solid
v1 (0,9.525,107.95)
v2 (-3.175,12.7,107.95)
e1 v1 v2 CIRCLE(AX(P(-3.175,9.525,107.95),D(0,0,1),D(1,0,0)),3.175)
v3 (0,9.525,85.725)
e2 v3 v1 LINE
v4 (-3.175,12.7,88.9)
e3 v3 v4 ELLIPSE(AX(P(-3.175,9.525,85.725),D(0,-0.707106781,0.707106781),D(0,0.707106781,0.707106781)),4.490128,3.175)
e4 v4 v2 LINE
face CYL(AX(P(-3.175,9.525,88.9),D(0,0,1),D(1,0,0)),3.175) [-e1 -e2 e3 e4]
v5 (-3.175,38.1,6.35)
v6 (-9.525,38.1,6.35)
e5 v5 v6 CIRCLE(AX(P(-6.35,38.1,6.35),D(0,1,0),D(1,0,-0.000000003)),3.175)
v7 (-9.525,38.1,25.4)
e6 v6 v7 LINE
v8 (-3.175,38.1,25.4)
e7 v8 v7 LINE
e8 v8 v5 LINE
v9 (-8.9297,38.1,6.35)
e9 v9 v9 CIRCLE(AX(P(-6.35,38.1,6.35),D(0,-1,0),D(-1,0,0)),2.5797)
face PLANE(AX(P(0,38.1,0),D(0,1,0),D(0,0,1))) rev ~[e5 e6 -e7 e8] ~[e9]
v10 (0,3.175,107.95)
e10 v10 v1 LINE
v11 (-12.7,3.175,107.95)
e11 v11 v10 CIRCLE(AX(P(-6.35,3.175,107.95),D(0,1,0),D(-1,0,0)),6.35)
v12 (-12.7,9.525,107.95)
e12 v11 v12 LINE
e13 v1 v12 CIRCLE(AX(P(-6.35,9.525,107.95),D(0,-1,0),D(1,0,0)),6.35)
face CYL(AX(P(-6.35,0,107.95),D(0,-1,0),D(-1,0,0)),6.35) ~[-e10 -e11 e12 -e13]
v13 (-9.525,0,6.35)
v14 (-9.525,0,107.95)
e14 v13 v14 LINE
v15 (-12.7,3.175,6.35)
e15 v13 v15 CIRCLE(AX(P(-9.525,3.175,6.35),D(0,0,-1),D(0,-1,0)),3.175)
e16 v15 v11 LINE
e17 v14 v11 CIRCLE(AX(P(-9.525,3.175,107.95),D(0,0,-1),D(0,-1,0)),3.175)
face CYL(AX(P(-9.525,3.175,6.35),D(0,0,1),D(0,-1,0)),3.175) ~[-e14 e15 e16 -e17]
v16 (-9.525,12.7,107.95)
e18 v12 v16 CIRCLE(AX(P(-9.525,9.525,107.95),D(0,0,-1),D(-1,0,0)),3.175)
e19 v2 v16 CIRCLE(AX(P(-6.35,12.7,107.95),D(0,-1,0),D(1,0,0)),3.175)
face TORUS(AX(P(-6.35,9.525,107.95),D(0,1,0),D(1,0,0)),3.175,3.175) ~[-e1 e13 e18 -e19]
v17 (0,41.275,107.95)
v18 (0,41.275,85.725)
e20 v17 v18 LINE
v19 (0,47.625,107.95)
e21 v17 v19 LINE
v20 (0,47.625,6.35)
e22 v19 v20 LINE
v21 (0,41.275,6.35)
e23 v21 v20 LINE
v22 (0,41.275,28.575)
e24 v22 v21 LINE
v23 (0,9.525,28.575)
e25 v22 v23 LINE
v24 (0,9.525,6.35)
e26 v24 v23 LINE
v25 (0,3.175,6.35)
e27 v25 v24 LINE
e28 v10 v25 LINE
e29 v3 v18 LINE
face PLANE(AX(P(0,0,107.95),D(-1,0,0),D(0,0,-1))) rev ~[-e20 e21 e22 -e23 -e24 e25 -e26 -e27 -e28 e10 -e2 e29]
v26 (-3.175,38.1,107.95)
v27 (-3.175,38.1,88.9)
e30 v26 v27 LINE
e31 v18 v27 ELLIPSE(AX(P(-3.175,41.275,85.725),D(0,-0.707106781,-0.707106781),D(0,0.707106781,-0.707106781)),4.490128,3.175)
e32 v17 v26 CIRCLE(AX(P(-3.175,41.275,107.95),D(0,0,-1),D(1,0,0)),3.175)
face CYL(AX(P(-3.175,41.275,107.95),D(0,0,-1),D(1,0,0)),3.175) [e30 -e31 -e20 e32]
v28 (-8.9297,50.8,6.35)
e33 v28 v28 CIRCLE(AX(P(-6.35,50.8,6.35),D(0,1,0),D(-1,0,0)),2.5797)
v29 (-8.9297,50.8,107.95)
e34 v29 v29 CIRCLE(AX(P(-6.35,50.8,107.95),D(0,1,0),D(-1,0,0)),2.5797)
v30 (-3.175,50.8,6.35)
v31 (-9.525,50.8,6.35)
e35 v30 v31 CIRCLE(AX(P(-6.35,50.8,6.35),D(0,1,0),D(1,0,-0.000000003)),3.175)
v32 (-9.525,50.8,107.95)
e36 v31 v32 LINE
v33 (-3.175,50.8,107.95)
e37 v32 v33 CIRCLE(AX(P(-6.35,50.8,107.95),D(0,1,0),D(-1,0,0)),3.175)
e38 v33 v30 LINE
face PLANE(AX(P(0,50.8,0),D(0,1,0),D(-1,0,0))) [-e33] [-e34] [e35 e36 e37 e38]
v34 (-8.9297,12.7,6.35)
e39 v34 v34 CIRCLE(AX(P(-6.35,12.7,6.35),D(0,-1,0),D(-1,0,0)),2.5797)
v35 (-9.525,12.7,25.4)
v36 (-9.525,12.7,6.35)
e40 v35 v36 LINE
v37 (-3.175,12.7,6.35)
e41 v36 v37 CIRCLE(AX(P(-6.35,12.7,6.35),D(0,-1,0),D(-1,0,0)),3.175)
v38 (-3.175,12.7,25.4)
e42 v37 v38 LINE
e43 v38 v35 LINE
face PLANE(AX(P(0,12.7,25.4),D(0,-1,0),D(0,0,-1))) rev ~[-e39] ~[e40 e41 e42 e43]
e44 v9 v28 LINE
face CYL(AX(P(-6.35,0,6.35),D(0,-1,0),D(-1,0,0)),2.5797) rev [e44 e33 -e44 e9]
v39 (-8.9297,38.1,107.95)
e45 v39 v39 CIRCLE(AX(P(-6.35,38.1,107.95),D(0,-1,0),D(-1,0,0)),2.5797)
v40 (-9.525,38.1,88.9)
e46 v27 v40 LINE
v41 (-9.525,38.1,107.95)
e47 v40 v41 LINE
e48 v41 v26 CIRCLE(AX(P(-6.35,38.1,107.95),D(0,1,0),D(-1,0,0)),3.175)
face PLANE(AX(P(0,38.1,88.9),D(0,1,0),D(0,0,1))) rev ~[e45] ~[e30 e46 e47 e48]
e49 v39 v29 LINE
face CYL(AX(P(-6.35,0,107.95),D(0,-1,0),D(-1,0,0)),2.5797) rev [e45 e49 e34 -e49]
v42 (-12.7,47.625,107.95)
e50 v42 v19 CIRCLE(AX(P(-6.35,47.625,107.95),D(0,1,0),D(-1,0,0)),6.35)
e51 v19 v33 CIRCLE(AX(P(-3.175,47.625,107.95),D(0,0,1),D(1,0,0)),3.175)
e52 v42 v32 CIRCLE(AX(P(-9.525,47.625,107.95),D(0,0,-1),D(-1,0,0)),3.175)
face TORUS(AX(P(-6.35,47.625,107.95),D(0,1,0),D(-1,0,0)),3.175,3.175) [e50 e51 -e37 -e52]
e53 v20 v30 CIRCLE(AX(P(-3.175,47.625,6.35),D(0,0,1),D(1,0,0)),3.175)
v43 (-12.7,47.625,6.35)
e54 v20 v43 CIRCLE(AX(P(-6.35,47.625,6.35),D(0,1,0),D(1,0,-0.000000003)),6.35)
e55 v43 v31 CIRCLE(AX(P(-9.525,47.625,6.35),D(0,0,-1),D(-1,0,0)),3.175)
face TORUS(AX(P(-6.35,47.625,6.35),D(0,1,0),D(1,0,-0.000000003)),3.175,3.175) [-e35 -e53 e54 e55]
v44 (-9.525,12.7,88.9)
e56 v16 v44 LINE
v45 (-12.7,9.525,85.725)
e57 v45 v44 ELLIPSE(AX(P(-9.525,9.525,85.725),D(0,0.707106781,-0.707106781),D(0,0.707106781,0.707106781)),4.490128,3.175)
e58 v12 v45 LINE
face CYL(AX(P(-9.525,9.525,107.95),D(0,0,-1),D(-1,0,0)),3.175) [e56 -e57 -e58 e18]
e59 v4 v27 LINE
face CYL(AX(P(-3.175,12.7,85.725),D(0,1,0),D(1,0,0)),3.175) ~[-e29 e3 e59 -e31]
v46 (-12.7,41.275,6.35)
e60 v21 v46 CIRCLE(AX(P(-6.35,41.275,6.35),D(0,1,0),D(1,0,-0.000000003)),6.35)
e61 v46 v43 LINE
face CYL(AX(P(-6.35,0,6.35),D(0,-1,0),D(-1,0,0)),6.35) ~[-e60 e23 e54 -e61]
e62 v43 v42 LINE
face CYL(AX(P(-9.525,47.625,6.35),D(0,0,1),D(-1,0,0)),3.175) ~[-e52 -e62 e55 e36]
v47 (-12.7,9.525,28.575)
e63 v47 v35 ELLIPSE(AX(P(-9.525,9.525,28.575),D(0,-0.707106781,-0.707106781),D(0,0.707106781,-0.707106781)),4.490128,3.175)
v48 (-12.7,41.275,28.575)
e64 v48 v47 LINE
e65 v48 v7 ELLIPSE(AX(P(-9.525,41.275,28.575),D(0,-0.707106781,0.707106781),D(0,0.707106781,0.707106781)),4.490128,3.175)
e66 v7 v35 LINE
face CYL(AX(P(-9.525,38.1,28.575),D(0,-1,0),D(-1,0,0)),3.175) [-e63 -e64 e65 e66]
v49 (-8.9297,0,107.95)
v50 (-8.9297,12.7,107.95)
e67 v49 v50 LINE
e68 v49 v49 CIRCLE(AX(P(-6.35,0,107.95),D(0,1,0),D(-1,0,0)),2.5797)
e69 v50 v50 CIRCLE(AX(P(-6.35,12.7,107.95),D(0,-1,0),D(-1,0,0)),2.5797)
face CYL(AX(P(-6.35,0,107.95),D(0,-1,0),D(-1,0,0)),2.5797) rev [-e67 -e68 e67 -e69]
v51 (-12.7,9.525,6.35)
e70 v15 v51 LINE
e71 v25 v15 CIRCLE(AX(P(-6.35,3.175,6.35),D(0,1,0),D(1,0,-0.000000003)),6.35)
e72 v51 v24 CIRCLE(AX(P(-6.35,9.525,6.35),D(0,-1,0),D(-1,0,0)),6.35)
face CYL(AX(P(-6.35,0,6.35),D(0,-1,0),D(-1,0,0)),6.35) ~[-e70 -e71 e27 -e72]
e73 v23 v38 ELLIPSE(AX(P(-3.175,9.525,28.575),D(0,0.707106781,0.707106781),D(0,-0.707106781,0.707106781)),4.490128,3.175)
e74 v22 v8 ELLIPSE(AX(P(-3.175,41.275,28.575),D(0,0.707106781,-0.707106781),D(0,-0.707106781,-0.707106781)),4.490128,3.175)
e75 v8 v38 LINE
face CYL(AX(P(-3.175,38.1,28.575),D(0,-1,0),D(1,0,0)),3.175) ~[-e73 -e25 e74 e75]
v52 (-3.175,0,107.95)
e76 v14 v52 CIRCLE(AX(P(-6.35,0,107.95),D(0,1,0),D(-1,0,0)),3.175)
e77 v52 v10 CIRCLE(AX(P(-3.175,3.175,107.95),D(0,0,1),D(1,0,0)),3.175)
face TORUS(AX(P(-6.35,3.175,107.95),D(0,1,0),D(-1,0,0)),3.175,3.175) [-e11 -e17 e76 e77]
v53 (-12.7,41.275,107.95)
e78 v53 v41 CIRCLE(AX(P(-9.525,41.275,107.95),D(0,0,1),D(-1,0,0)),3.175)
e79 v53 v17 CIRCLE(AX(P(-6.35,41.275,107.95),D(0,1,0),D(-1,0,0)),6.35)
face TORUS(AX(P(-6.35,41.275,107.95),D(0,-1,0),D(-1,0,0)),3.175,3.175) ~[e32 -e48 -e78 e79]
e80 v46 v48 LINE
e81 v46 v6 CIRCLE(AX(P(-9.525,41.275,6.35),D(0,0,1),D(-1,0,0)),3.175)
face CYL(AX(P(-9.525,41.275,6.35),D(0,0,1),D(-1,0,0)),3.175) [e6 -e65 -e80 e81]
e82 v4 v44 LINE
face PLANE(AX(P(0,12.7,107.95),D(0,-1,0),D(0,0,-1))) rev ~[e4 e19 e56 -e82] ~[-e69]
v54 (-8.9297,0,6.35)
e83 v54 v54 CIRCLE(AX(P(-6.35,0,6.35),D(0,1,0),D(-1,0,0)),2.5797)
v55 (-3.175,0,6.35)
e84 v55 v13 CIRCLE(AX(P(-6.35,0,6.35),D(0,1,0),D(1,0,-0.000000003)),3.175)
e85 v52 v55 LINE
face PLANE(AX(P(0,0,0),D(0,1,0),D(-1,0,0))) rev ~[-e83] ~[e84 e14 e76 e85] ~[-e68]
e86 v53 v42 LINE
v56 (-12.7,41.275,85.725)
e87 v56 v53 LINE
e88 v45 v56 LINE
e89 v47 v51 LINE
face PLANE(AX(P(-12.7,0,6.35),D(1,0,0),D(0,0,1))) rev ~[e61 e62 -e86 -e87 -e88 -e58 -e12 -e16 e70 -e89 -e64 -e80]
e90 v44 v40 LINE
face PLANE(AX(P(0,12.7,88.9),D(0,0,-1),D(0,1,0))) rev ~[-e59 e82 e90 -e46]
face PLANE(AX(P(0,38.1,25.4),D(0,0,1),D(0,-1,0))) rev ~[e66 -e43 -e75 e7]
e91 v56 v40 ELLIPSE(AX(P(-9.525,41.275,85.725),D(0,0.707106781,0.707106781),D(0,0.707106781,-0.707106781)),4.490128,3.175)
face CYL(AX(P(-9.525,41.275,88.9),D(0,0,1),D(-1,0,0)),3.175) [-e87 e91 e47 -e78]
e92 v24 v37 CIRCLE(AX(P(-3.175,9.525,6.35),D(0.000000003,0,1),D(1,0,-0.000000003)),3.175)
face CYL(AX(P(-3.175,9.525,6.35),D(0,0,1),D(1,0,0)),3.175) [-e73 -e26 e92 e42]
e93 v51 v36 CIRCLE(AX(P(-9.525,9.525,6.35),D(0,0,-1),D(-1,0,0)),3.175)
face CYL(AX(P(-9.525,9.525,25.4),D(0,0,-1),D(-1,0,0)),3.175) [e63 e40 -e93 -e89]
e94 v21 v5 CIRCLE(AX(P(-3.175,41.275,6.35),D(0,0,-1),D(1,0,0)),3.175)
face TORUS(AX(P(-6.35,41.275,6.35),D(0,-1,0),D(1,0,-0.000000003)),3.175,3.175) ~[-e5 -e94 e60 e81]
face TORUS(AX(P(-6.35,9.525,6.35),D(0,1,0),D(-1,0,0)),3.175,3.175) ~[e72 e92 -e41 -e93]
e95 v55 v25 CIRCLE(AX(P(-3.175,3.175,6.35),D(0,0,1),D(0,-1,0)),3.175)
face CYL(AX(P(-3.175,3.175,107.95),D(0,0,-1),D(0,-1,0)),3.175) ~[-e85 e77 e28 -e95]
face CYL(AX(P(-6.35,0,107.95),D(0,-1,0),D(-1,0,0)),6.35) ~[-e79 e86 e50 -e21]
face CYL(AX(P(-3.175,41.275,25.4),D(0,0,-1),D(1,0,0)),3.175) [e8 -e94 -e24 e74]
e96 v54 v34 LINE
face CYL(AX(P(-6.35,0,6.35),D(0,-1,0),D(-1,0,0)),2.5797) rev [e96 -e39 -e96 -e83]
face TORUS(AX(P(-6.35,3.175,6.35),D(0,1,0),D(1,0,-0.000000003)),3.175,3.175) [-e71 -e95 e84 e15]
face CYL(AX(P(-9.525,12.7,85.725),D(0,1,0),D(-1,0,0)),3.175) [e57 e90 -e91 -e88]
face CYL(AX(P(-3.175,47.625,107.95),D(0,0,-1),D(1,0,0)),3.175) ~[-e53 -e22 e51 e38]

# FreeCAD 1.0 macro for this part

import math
import FreeCAD as App
import Part
import Sketcher
from FreeCAD import Vector
Q = App.Units.Quantity


def edges_at(feature, points):
    """Names of the edges that pass closest to the given points."""
    edges = feature.Shape.Edges
    near = lambda p: min(range(len(edges)), key=lambda i: edges[i].distToShape(Part.Vertex(*p))[0])
    return sorted({f"Edge{near(p) + 1}" for p in points})


def add_polygon(sketch, points):
    """Adds a closed chain of lines whose ends are joined by coincident constraints."""
    first, n = sketch.GeometryCount, len(points)
    for a, b in zip(points, points[1:] + points[:1]):
        sketch.addGeometry(Part.LineSegment(App.Vector(*a, 0), App.Vector(*b, 0)), False)
    for i in range(n):
        sketch.addConstraint(Sketcher.Constraint("Coincident", first + i, 2, first + (i + 1) % n, 1))

doc = App.newDocument("Part")
body = doc.addObject("PartDesign::Body", "Body")

sketch1 = body.newObject("Sketcher::SketchObject", "Sketch")
sketch1.AttachmentSupport = (doc.getObject("XZ_Plane"), [""])
sketch1.MapMode = "FlatFace"
sketch1.addGeometry([
    Part.ArcOfCircle(Part.Circle(Vector(-6.35, 6.35, 0), Vector(0, 0, 1), 6.35), math.radians(180), math.radians(360)),
    Part.LineSegment(Vector(-12.7, 6.35, 0), Vector(-12.7, 107.95, 0)),
    Part.ArcOfCircle(Part.Circle(Vector(-6.35, 107.95, 0), Vector(0, 0, 1), 6.35), math.radians(0), math.radians(180)),
    Part.LineSegment(Vector(0, 107.95, 0), Vector(0, 6.35, 0)),
    Part.Circle(Vector(-6.35, 6.35, 0), Vector(0, 0, 1), 2.5797),
    Part.Circle(Vector(-6.35, 107.95, 0), Vector(0, 0, 1), 2.5797),
], False)
sketch1.addConstraint([
    Sketcher.Constraint("Tangent", 0, 1, 1, 1),
    Sketcher.Constraint("Tangent", 1, 2, 2, 2),
    Sketcher.Constraint("Tangent", 2, 1, 3, 1),
    Sketcher.Constraint("Tangent", 3, 2, 0, 2),
    Sketcher.Constraint("Vertical", 1),
    Sketcher.Constraint("Vertical", 3),
    Sketcher.Constraint("Coincident", 4, 3, 0, 3),
    Sketcher.Constraint("Coincident", 5, 3, 2, 3),
    Sketcher.Constraint("Equal", 4, 5),
    Sketcher.Constraint("PointOnObject", 2, 1, -2),
    Sketcher.Constraint("DistanceY", 1, 1, 1, 2, Q("4 in")),
    Sketcher.Constraint("Radius", 0, Q("0.25 in")),
    Sketcher.Constraint("Diameter", 4, Q("0.203126 in")),
    Sketcher.Constraint("DistanceY", -1, 1, 0, 3, Q("0.25 in")),
])
pad1 = body.newObject("PartDesign::Pad", "Pad")
pad1.Profile = sketch1
pad1.Length = Q("2 in")
pad1.Reversed = True

sketch2 = body.newObject("Sketcher::SketchObject", "Sketch001")
sketch2.AttachmentSupport = (doc.getObject("YZ_Plane"), [""])
sketch2.MapMode = "FlatFace"
add_polygon(sketch2, [(12.7, 0), (38.1, 0), (38.1, 25.4), (12.7, 25.4)])
add_polygon(sketch2, [(38.1, 88.9), (38.1, 114.3), (12.7, 114.3), (12.7, 88.9)])
sketch2.addConstraint([
    Sketcher.Constraint("Horizontal", 0),
    Sketcher.Constraint("Vertical", 1),
    Sketcher.Constraint("Horizontal", 2),
    Sketcher.Constraint("Vertical", 3),
    Sketcher.Constraint("Vertical", 4),
    Sketcher.Constraint("Horizontal", 5),
    Sketcher.Constraint("Vertical", 6),
    Sketcher.Constraint("Horizontal", 7),
    Sketcher.Constraint("PointOnObject", 0, 2, -1),
    Sketcher.Constraint("Vertical", 1, 2, 4, 2),
    Sketcher.Constraint("Vertical", 3, 2, 5, 2),
    Sketcher.Constraint("Equal", 7, 1),
    Sketcher.Constraint("Equal", 3, 4),
    Sketcher.Constraint("DistanceX", 0, 1, 0, 2, Q("1 in")),
    Sketcher.Constraint("DistanceX", -1, 1, 2, 2, Q("0.5 in")),
    Sketcher.Constraint("DistanceY", -1, 1, 4, 2, Q("4.5 in")),
])
pocket1 = body.newObject("PartDesign::Pocket", "Pocket")
pocket1.Profile = sketch2
pocket1.Type = "ThroughAll"
doc.recompute()

fillet = body.newObject("PartDesign::Fillet", "Fillet")
fillet.Base = (pocket1, edges_at(pocket1, [
    (-12.7, 38.1, 15.875),
    (0, 38.1, 15.875),
    (-6.35, 38.1, 0),
    (-6.35, 12.7, 0),
    (-12.7, 12.7, 15.875),
    (0, 12.7, 15.875),
    (0, 25.4, 25.4),
    (-12.7, 25.4, 25.4),
    (-12.7, 0, 57.15),
    (-6.35, 0, 114.3),
    (0, 0, 57.15),
    (-6.35, 0, 0),
    (-6.35, 50.8, 114.3),
    (0, 50.8, 57.15),
    (-6.35, 50.8, 0),
    (-12.7, 50.8, 57.15),
    (0, 25.4, 88.9),
    (-12.7, 25.4, 88.9),
    (-6.35, 12.7, 114.3),
    (-12.7, 12.7, 98.425),
    (0, 12.7, 98.425),
    (0, 38.1, 98.425),
    (-12.7, 38.1, 98.425),
    (-6.35, 38.1, 114.3),
]))
fillet.Radius = Q("0.125 in")

doc.recompute()
